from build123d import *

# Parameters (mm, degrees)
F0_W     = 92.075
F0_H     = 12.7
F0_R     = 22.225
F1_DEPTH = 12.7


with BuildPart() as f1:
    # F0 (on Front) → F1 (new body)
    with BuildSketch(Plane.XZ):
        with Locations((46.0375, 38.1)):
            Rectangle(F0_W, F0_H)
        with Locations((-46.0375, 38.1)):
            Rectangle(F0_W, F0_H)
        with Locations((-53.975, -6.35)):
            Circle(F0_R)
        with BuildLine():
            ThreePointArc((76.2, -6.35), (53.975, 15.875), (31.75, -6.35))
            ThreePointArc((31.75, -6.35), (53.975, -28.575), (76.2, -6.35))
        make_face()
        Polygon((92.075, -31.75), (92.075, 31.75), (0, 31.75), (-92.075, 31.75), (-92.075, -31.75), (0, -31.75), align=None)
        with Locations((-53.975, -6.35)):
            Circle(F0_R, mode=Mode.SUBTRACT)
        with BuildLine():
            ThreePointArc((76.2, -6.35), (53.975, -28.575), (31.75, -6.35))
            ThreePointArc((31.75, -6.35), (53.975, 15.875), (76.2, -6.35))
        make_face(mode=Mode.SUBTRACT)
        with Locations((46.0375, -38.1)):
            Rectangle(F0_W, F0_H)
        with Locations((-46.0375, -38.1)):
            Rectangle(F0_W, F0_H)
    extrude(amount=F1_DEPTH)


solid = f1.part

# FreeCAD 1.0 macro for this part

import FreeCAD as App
import Part
import Sketcher
Q = App.Units.Quantity

doc = App.newDocument("Part")
body = doc.addObject("PartDesign::Body", "Body")

# Sketch on XZ plane
sketch1 = body.newObject("Sketcher::SketchObject", "Sketch")
sketch1.AttachmentSupport = (doc.getObject("XZ_Plane"), [""])
sketch1.MapMode = "FlatFace"
sketch1.addGeometry([
    Part.LineSegment(App.Vector(92, 44, 0), App.Vector(-92, 44, 0)),  # 0
    Part.LineSegment(App.Vector(-92, 44, 0), App.Vector(-92, -44, 0)),  # 1
    Part.LineSegment(App.Vector(-92, -44, 0), App.Vector(92, -44, 0)),  # 2
    Part.LineSegment(App.Vector(92, -44, 0), App.Vector(92, 44, 0)),  # 3
    Part.Circle(App.Vector(54, -6, 0), App.Vector(0, 0, 1), 22),  # 4
    Part.Circle(App.Vector(-54, -6, 0), App.Vector(0, 0, 1), 22),  # 5
], False)
sketch1.addConstraint([
    Sketcher.Constraint("Coincident", 0, 2, 1, 1),
    Sketcher.Constraint("Coincident", 1, 2, 2, 1),
    Sketcher.Constraint("Coincident", 2, 2, 3, 1),
    Sketcher.Constraint("Coincident", 3, 2, 0, 1),
    Sketcher.Constraint("Horizontal", 0),
    Sketcher.Constraint("Vertical", 1),
    Sketcher.Constraint("Horizontal", 2),
    Sketcher.Constraint("Vertical", 3),
    Sketcher.Constraint("Equal", 4, 5),
    Sketcher.Constraint("Symmetric", 0, 2, 2, 2, -1, 1),
    Sketcher.Constraint("Symmetric", 4, 3, 5, 3, -2),
    Sketcher.Constraint("Diameter", 4, Q("1.75 in")),
    Sketcher.Constraint("DistanceY", 1, 2, 1, 1, Q("3.5 in")),
    Sketcher.Constraint("DistanceY", 5, 3, 0, 2, Q("2 in")),
    Sketcher.Constraint("DistanceX", 0, 2, 0, 1, Q("7.25 in")),
    Sketcher.Constraint("DistanceX", 0, 2, 5, 3, Q("1.5 in")),
])
pad1 = body.newObject("PartDesign::Pad", "Pad")
pad1.Profile = sketch1
pad1.Length = Q("0.5 in")

doc.recompute()
